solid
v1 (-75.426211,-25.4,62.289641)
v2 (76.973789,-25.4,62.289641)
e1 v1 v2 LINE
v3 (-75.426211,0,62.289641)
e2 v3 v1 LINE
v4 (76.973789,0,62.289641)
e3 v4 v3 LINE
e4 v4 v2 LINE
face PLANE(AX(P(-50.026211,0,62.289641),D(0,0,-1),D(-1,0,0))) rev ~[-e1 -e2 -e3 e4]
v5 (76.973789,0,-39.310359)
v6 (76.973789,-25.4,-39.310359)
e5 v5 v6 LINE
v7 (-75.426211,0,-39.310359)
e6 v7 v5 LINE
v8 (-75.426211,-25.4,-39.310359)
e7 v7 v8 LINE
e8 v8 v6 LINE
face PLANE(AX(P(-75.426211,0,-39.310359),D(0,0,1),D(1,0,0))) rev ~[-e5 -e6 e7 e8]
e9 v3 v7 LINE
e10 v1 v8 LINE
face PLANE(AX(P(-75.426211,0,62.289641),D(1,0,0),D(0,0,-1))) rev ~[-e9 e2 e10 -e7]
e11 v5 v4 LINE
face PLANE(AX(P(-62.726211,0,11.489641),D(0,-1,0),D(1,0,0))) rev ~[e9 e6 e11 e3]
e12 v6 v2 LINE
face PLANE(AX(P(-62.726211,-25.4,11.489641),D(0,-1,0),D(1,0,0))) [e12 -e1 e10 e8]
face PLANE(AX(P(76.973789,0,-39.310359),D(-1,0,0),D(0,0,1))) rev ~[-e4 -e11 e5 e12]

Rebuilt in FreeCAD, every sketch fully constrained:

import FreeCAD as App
import Part
import Sketcher

V = App.Vector
Q = App.Units.Quantity

doc = App.newDocument("Part")
params = doc.addObject("Spreadsheet::Sheet", "Params")
for row, (alias, value) in enumerate([
    ("sketch1_width", "4 in"),
    ("sketch1_height", "1 in"),
    ("pad1_length", "1 in"),
    ("sketch2_width", "1 in"),
    ("sketch2_width2", "6 in"),
    ("pad2_length", "1 in"),
], start=1):
    params.set(f"A{row}", alias)
    params.set(f"B{row}", "=" + value)
    params.setAlias(f"B{row}", alias)

body = doc.addObject("PartDesign::Body", "Body")

sketch1 = body.newObject("Sketcher::SketchObject", "Sketch")
sketch1.AttachmentSupport = (doc.getObject("XZ_Plane"), [""])
sketch1.MapMode = "FlatFace"
sketch1.addGeometry([
    Part.LineSegment(V(-50, 62, 0), V(-50, 37, 0)),
    Part.LineSegment(V(-50, 37, 0), V(52, 37, 0)),
    Part.LineSegment(V(52, 37, 0), V(52, 62, 0)),
    Part.LineSegment(V(52, 62, 0), V(-50, 62, 0)),
], False)
sketch1.addConstraint([
    Sketcher.Constraint("Coincident", 0, 2, 1, 1),
    Sketcher.Constraint("Coincident", 1, 2, 2, 1),
    Sketcher.Constraint("Coincident", 2, 2, 3, 1),
    Sketcher.Constraint("Coincident", 3, 2, 0, 1),
    Sketcher.Constraint("Vertical", 0),
    Sketcher.Constraint("Horizontal", 1),
    Sketcher.Constraint("Vertical", 2),
    Sketcher.Constraint("Horizontal", 3),
    Sketcher.Constraint("DistanceX", 1, 1, 1, 2, Q("4 in")),
    Sketcher.Constraint("DistanceY", 0, 2, 0, 1, Q("1 in")),
    Sketcher.Constraint("DistanceX", 0, 2, -1, 1, 50.026211),
    Sketcher.Constraint("DistanceY", -1, 1, 0, 2, 36.889641),
])
sketch1.setExpression("Constraints[8]", "Params.sketch1_width")
sketch1.setExpression("Constraints[9]", "Params.sketch1_height")
pad1 = body.newObject("PartDesign::Pad", "Pad")
pad1.Profile = sketch1
pad1.setExpression("Length", "Params.pad1_length")

sketch2 = body.newObject("Sketcher::SketchObject", "Sketch001")
sketch2.AttachmentSupport = (doc.getObject("XZ_Plane"), [""])
sketch2.MapMode = "FlatFace"
sketch2.addGeometry([
    Part.LineSegment(V(-50, 62, 0), V(-75, 62, 0)),
    Part.LineSegment(V(-75, 62, 0), V(-75, -39, 0)),
    Part.LineSegment(V(-75, -39, 0), V(77, -39, 0)),
    Part.LineSegment(V(77, -39, 0), V(77, 62, 0)),
    Part.LineSegment(V(77, 62, 0), V(52, 62, 0)),
    Part.LineSegment(V(52, 62, 0), V(52, 37, 0)),
    Part.LineSegment(V(52, 37, 0), V(-50, 37, 0)),
    Part.LineSegment(V(-50, 37, 0), V(-50, 62, 0)),
], False)
sketch2.addConstraint([
    Sketcher.Constraint("Coincident", 0, 2, 1, 1),
    Sketcher.Constraint("Coincident", 1, 2, 2, 1),
    Sketcher.Constraint("Coincident", 2, 2, 3, 1),
    Sketcher.Constraint("Coincident", 3, 2, 4, 1),
    Sketcher.Constraint("Coincident", 4, 2, 5, 1),
    Sketcher.Constraint("Coincident", 5, 2, 6, 1),
    Sketcher.Constraint("Coincident", 6, 2, 7, 1),
    Sketcher.Constraint("Coincident", 7, 2, 0, 1),
    Sketcher.Constraint("Horizontal", 0),
    Sketcher.Constraint("Vertical", 1),
    Sketcher.Constraint("Horizontal", 2),
    Sketcher.Constraint("Vertical", 3),
    Sketcher.Constraint("Horizontal", 4),
    Sketcher.Constraint("Vertical", 5),
    Sketcher.Constraint("Horizontal", 6),
    Sketcher.Constraint("Vertical", 7),
    Sketcher.Constraint("Horizontal", 0, 2, 3, 2),
    Sketcher.Constraint("Equal", 0, 4),
    Sketcher.Constraint("Equal", 6, 1),
    Sketcher.Constraint("Equal", 4, 5),
    Sketcher.Constraint("DistanceX", 0, 2, 0, 1, Q("1 in")),
    Sketcher.Constraint("DistanceX", 2, 1, 2, 2, Q("6 in")),
    Sketcher.Constraint("DistanceX", 0, 2, -1, 1, 75.426211),
    Sketcher.Constraint("DistanceY", -1, 1, 0, 2, 62.289641),
])
sketch2.setExpression("Constraints[20]", "Params.sketch2_width")
sketch2.setExpression("Constraints[21]", "Params.sketch2_width2")
pad2 = body.newObject("PartDesign::Pad", "Pad001")
pad2.Profile = sketch2
pad2.setExpression("Length", "Params.pad2_length")

doc.recompute()
